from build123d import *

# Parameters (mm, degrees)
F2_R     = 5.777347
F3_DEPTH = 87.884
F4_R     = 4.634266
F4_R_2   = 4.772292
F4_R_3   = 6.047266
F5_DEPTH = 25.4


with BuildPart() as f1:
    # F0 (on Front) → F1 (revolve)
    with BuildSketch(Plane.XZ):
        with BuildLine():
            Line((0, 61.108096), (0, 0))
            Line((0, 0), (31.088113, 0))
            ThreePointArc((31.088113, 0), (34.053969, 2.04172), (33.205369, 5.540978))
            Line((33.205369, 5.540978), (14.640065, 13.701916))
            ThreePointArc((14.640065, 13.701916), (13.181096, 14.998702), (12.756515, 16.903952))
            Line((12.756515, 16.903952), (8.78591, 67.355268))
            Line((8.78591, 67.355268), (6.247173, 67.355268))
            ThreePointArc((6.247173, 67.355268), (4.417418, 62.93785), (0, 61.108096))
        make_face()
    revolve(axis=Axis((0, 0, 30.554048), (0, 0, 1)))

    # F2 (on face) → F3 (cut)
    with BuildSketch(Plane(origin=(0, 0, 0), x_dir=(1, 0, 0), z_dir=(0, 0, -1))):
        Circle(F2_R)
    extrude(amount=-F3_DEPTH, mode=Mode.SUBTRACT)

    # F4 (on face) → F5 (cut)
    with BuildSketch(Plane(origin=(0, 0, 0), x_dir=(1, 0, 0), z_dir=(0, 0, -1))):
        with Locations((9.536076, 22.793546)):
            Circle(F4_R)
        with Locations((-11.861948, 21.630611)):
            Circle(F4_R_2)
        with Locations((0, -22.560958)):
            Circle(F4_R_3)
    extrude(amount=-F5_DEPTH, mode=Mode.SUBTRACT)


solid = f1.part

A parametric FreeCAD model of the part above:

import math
import FreeCAD as App
import Part
import Sketcher
Q = App.Units.Quantity

doc = App.newDocument("Part")
body = doc.addObject("PartDesign::Body", "Body")

sketch1 = body.newObject("Sketcher::SketchObject", "Sketch")
sketch1.AttachmentSupport = (doc.getObject("XZ_Plane"), [""])
sketch1.MapMode = "FlatFace"
sketch1.addGeometry([
    Part.LineSegment(App.Vector(0, 61.1, 0), App.Vector(0, 0, 0)),
    Part.LineSegment(App.Vector(0, 0, 0), App.Vector(31.1, 0, 0)),
    Part.ArcOfCircle(Part.Circle(App.Vector(31.1, 3.2, 0), App.Vector(0, 0, 1), 3.2), math.radians(-90), math.radians(48)),
    Part.LineSegment(App.Vector(33.2, 5.5, 0), App.Vector(14.6, 13.7, 0)),
    Part.ArcOfCircle(Part.Circle(App.Vector(15.9, 16.6, 0), App.Vector(0, 0, 1), 3.2), math.radians(175), math.radians(246)),
    Part.LineSegment(App.Vector(12.8, 16.9, 0), App.Vector(8.8, 67.4, 0)),
    Part.LineSegment(App.Vector(8.8, 67.4, 0), App.Vector(6.2, 67.4, 0)),
    Part.ArcOfCircle(Part.Circle(App.Vector(0, 67.4, 0), App.Vector(0, 0, 1), 6.2), math.radians(-90), math.radians(0)),
], False)
sketch1.addConstraint([
    Sketcher.Constraint("Coincident", 0, 2, 1, 1),
    Sketcher.Constraint("Tangent", 1, 2, 2, 1),
    Sketcher.Constraint("Coincident", 2, 2, 3, 1),
    Sketcher.Constraint("Tangent", 3, 2, 4, 2),
    Sketcher.Constraint("Coincident", 4, 1, 5, 1),
    Sketcher.Constraint("Coincident", 5, 2, 6, 1),
    Sketcher.Constraint("Coincident", 6, 2, 7, 2),
    Sketcher.Constraint("Coincident", 7, 1, 0, 1),
    Sketcher.Constraint("Vertical", 0),
    Sketcher.Constraint("Horizontal", 1),
    Sketcher.Constraint("Horizontal", 6),
    Sketcher.Constraint("Coincident", 0, 2, -1, 1),
    Sketcher.Constraint("Equal", 2, 4),
    Sketcher.Constraint("PointOnObject", 7, 3, -2),
    Sketcher.Constraint("Horizontal", 7, 3, 5, 2),
    Sketcher.Constraint("Radius", 2, Q("0.125 in")),
    Sketcher.Constraint("Angle", 5, Q("94.5 deg")),
    Sketcher.Constraint("Radius", 7, 6.247173),
    Sketcher.Constraint("DistanceX", 4, 1, 2, 3, 18.331598),
    Sketcher.Constraint("Distance", 5, 50.607322),
    Sketcher.Constraint("DistanceX", 1, 1, 1, 2, 31.088113),
    Sketcher.Constraint("DistanceY", 0, 2, 0, 1, 61.108096),
    Sketcher.Constraint("DistanceY", -1, 1, 4, 3, 16.60849),
    Sketcher.Constraint("DistanceX", -1, 1, 2, 2, 33.205369),
])
revolution = body.newObject("PartDesign::Revolution", "Revolution")
revolution.Profile = sketch1
revolution.ReferenceAxis = (sketch1, ["V_Axis"])
revolution.Angle = 360

sketch2 = body.newObject("Sketcher::SketchObject", "Sketch001")
sketch2.AttachmentSupport = (doc.getObject("XY_Plane"), [""])
sketch2.MapMode = "FlatFace"
sketch2.addGeometry(Part.Circle(App.Vector(0, 0, 0), App.Vector(0, 0, 1), 6), False)
sketch2.addConstraint([
    Sketcher.Constraint("Coincident", 0, 3, -1, 1),
    Sketcher.Constraint("Diameter", 0, 11.554694),
])
pocket1 = body.newObject("PartDesign::Pocket", "Pocket")
pocket1.Profile = sketch2
pocket1.Length = Q("3.46 in")
pocket1.Reversed = True

sketch3 = body.newObject("Sketcher::SketchObject", "Sketch002")
sketch3.AttachmentSupport = (doc.getObject("XY_Plane"), [""])
sketch3.MapMode = "FlatFace"
sketch3.addGeometry([
    Part.Circle(App.Vector(9.5, -22.8, 0), App.Vector(0, 0, 1), 4.6),
    Part.Circle(App.Vector(-11.9, -21.6, 0), App.Vector(0, 0, 1), 4.8),
    Part.Circle(App.Vector(0, 22.6, 0), App.Vector(0, 0, 1), 6),
], False)
sketch3.addConstraint([
    Sketcher.Constraint("PointOnObject", 2, 3, -2),
    Sketcher.Constraint("Diameter", 2, 12.094532),
    Sketcher.Constraint("Diameter", 0, 9.268532),
    Sketcher.Constraint("Diameter", 1, 9.544584),
    Sketcher.Constraint("DistanceY", 1, 3, -1, 1, 21.630611),
    Sketcher.Constraint("DistanceY", 1, 3, 2, 3, 44.191569),
    Sketcher.Constraint("DistanceX", -1, 1, 0, 3, 9.536076),
    Sketcher.Constraint("DistanceY", 0, 3, -1, 1, 22.793546),
    Sketcher.Constraint("DistanceX", 1, 3, -1, 1, 11.861948),
])
pocket2 = body.newObject("PartDesign::Pocket", "Pocket001")
pocket2.Profile = sketch3
pocket2.Length = Q("1 in")
pocket2.Reversed = True

doc.recompute()
